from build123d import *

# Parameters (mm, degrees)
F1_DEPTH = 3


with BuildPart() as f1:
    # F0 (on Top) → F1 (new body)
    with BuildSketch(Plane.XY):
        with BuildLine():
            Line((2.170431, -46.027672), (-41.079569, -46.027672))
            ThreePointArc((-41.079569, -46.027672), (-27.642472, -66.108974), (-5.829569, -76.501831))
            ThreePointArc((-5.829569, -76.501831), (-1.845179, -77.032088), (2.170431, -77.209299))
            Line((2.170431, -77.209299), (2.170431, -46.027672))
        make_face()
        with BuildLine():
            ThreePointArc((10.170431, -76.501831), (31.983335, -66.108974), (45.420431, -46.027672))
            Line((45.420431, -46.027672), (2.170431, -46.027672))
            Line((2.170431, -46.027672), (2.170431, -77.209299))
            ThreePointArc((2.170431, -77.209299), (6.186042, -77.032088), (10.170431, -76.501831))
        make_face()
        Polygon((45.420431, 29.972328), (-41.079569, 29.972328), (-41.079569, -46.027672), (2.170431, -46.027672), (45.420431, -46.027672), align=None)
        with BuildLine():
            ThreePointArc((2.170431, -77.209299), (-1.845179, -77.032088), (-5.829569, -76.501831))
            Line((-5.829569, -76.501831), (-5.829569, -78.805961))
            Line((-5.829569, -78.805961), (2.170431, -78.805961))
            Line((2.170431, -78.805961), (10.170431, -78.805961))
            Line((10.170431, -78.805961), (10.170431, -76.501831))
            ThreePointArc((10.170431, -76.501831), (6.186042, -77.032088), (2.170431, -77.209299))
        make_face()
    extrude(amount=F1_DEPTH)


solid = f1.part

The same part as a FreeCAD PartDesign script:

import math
import FreeCAD as App
import Part
import Sketcher

doc = App.newDocument("Part")
body = doc.addObject("PartDesign::Body", "Body")

# Sketch on XY plane
sketch1 = body.newObject("Sketcher::SketchObject", "Sketch")
sketch1.AttachmentSupport = (doc.getObject("XY_Plane"), [""])
sketch1.MapMode = "FlatFace"
sketch1.addGeometry([
    Part.ArcOfCircle(Part.Circle(App.Vector(2.2, -31.6, 0), App.Vector(0, 0, 1), 45.6), math.radians(-162), math.radians(-100)),  # 0
    Part.LineSegment(App.Vector(-5.8, -76.5, 0), App.Vector(-5.8, -78.8, 0)),  # 1
    Part.LineSegment(App.Vector(-5.8, -78.8, 0), App.Vector(10.2, -78.8, 0)),  # 2
    Part.LineSegment(App.Vector(10.2, -78.8, 0), App.Vector(10.2, -76.5, 0)),  # 3
    Part.ArcOfCircle(Part.Circle(App.Vector(2.2, -31.6, 0), App.Vector(0, 0, 1), 45.6), math.radians(-80), math.radians(-18)),  # 4
    Part.LineSegment(App.Vector(45.4, -46, 0), App.Vector(45.4, 30, 0)),  # 5
    Part.LineSegment(App.Vector(45.4, 30, 0), App.Vector(-41.1, 30, 0)),  # 6
    Part.LineSegment(App.Vector(-41.1, 30, 0), App.Vector(-41.1, -46, 0)),  # 7
], False)
sketch1.addConstraint([
    Sketcher.Constraint("Coincident", 0, 2, 1, 1),
    Sketcher.Constraint("Coincident", 1, 2, 2, 1),
    Sketcher.Constraint("Coincident", 2, 2, 3, 1),
    Sketcher.Constraint("Coincident", 3, 2, 4, 1),
    Sketcher.Constraint("Coincident", 4, 2, 5, 1),
    Sketcher.Constraint("Coincident", 5, 2, 6, 1),
    Sketcher.Constraint("Coincident", 6, 2, 7, 1),
    Sketcher.Constraint("Coincident", 7, 2, 0, 1),
    Sketcher.Constraint("Vertical", 1),
    Sketcher.Constraint("Horizontal", 2),
    Sketcher.Constraint("Vertical", 3),
    Sketcher.Constraint("Vertical", 5),
    Sketcher.Constraint("Horizontal", 6),
    Sketcher.Constraint("Vertical", 7),
    Sketcher.Constraint("Coincident", 4, 3, 0, 3),
    Sketcher.Constraint("Horizontal", 0, 2, 3, 2),
    Sketcher.Constraint("Horizontal", 4, 2, 7, 2),
    Sketcher.Constraint("DistanceX", 2, 1, 2, 2, 16.0),
    Sketcher.Constraint("DistanceY", 5, 1, 5, 2, 76.0),
    Sketcher.Constraint("DistanceX", 6, 2, 6, 1, 86.5),
    Sketcher.Constraint("DistanceX", 0, 2, 0, 3, 8.000001),
    Sketcher.Constraint("Radius", 0, 45.585441),
    Sketcher.Constraint("DistanceY", 1, 2, 1, 1, 2.30413),
    Sketcher.Constraint("DistanceX", -1, 1, 0, 3, 2.170432),
    Sketcher.Constraint("DistanceY", 0, 3, -1, 1, 31.623859),
])
pad1 = body.newObject("PartDesign::Pad", "Pad")
pad1.Profile = sketch1
pad1.Length = 3

doc.recompute()
